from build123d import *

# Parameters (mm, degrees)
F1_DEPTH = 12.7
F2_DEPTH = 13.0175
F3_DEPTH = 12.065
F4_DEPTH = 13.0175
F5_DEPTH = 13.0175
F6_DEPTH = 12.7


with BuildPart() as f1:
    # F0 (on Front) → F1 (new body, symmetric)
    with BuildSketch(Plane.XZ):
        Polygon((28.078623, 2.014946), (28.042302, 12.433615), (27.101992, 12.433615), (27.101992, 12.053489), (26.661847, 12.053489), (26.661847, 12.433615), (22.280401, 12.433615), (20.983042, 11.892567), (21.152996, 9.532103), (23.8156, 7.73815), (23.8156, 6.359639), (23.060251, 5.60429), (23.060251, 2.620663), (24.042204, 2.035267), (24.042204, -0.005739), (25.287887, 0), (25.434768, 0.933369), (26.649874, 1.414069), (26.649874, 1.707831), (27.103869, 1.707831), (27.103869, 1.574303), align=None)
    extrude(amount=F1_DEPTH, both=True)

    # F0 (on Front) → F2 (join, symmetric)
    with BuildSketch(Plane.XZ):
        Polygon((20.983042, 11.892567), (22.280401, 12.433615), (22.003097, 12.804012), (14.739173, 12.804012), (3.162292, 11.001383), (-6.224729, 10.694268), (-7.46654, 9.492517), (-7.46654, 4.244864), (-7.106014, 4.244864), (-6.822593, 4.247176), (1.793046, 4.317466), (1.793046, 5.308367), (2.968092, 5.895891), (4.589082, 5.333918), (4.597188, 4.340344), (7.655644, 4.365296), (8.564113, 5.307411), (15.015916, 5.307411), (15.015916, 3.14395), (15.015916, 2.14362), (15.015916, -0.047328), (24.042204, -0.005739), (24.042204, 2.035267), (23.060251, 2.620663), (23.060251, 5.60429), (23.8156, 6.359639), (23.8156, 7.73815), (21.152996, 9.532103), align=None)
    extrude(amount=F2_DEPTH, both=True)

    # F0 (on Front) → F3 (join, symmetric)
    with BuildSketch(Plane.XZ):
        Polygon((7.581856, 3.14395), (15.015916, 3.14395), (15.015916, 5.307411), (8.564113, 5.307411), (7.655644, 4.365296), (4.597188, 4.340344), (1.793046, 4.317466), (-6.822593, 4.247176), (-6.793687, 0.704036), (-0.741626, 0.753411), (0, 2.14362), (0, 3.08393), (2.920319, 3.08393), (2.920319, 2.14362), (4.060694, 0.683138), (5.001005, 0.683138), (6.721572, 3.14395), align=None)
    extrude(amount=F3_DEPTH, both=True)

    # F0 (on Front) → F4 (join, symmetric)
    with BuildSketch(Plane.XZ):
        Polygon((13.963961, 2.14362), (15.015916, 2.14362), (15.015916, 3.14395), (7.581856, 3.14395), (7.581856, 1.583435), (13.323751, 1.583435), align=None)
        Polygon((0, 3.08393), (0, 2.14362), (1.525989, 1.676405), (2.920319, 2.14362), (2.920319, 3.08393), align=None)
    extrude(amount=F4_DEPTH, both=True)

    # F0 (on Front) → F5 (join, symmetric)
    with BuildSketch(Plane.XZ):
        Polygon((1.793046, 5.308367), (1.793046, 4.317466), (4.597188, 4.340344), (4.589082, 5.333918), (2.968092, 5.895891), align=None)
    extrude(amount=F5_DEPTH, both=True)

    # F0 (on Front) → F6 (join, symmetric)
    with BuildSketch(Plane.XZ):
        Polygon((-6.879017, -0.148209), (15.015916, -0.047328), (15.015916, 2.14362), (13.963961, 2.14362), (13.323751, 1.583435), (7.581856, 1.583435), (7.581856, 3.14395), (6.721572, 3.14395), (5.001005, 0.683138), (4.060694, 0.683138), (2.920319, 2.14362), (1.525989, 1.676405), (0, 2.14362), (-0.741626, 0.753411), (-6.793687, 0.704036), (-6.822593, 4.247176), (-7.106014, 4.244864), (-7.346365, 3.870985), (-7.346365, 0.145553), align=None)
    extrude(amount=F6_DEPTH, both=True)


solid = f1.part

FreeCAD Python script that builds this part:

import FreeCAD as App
import Part
import Sketcher
Q = App.Units.Quantity


def add_polygon(sketch, points):
    """Adds a closed chain of lines whose ends are joined by coincident constraints."""
    first, n = sketch.GeometryCount, len(points)
    for a, b in zip(points, points[1:] + points[:1]):
        sketch.addGeometry(Part.LineSegment(App.Vector(*a, 0), App.Vector(*b, 0)), False)
    for i in range(n):
        sketch.addConstraint(Sketcher.Constraint("Coincident", first + i, 2, first + (i + 1) % n, 1))

doc = App.newDocument("Part")
body = doc.addObject("PartDesign::Body", "Body")

sketch1 = body.newObject("Sketcher::SketchObject", "Sketch")
sketch1.AttachmentSupport = (doc.getObject("XZ_Plane"), [""])
sketch1.MapMode = "FlatFace"
add_polygon(sketch1, [(28.08, 2.01), (28.04, 12.43), (27.1, 12.43), (27.1, 12.05), (26.66, 12.05), (26.66, 12.43), (22.28, 12.43), (20.98, 11.89), (21.15, 9.53), (23.82, 7.74), (23.82, 6.36), (23.06, 5.6), (23.06, 2.62), (24.04, 2.04), (24.04, -0.01), (25.29, 0), (25.43, 0.93), (26.65, 1.41), (26.65, 1.71), (27.1, 1.71), (27.1, 1.57)])
sketch1.addConstraint(Sketcher.Constraint("Horizontal", 1))
sketch1.addConstraint(Sketcher.Constraint("Vertical", 2))
sketch1.addConstraint(Sketcher.Constraint("Horizontal", 3))
sketch1.addConstraint(Sketcher.Constraint("Vertical", 4))
sketch1.addConstraint(Sketcher.Constraint("Horizontal", 5))
sketch1.addConstraint(Sketcher.Constraint("Vertical", 9))
sketch1.addConstraint(Sketcher.Constraint("Vertical", 11))
sketch1.addConstraint(Sketcher.Constraint("Vertical", 13))
sketch1.addConstraint(Sketcher.Constraint("Vertical", 17))
sketch1.addConstraint(Sketcher.Constraint("Horizontal", 18))
sketch1.addConstraint(Sketcher.Constraint("Vertical", 19))
sketch1.addConstraint(Sketcher.Constraint("PointOnObject", 14, 2, -1))
sketch1.addConstraint(Sketcher.Constraint("Horizontal", 1, 2, 4, 2))
sketch1.addConstraint(Sketcher.Constraint("Angle", 10, Q("-135 deg")))
sketch1.addConstraint(Sketcher.Constraint("Distance", 8, Q("0.1264002 in")))
sketch1.addConstraint(Sketcher.Constraint("DistanceY", 9, 2, 7, 2, Q("0.1249002 in")))
sketch1.addConstraint(Sketcher.Constraint("DistanceX", 1, 2, 1, 1, 0.94031))
sketch1.addConstraint(Sketcher.Constraint("DistanceY", 9, 2, 9, 1, 1.378511))
sketch1.addConstraint(Sketcher.Constraint("DistanceY", 19, 2, 19, 1, 0.133528))
sketch1.addConstraint(Sketcher.Constraint("DistanceX", -1, 1, 0, 2, 28.042302))
sketch1.addConstraint(Sketcher.Constraint("DistanceX", -1, 1, 5, 2, 22.280401))
sketch1.addConstraint(Sketcher.Constraint("DistanceX", -1, 1, 8, 2, 23.8156))
sketch1.addConstraint(Sketcher.Constraint("DistanceY", 15, 2, 12, 2, 1.101898))
sketch1.addConstraint(Sketcher.Constraint("DistanceY", 15, 2, 16, 2, 0.4807))
sketch1.addConstraint(Sketcher.Constraint("DistanceX", 15, 2, 18, 2, 1.669101))
sketch1.addConstraint(Sketcher.Constraint("DistanceX", 3, 2, 3, 1, 0.440145))
sketch1.addConstraint(Sketcher.Constraint("DistanceX", 18, 1, 18, 2, 0.453995))
sketch1.addConstraint(Sketcher.Constraint("DistanceY", 2, 2, 2, 1, 0.380126))
sketch1.addConstraint(Sketcher.Constraint("DistanceY", 11, 2, 11, 1, 2.983627))
sketch1.addConstraint(Sketcher.Constraint("DistanceY", 13, 2, 13, 1, 2.041006))
sketch1.addConstraint(Sketcher.Constraint("DistanceY", 17, 1, 17, 2, 0.293762))
sketch1.addConstraint(Sketcher.Constraint("DistanceY", -1, 1, 2, 2, 12.053489))
sketch1.addConstraint(Sketcher.Constraint("DistanceY", -1, 1, 8, 2, 7.73815))
sketch1.addConstraint(Sketcher.Constraint("DistanceX", -1, 1, 10, 2, 23.060251))
sketch1.addConstraint(Sketcher.Constraint("DistanceY", 13, 2, -1, 1, 0.005739))
sketch1.addConstraint(Sketcher.Constraint("DistanceX", -1, 1, 18, 2, 27.103869))
sketch1.addConstraint(Sketcher.Constraint("DistanceX", 6, 2, 5, 2, 1.297359))
sketch1.addConstraint(Sketcher.Constraint("DistanceX", 7, 2, 12, 2, 2.889208))
sketch1.addConstraint(Sketcher.Constraint("DistanceX", 14, 2, 15, 2, 0.146881))
sketch1.addConstraint(Sketcher.Constraint("DistanceX", 17, 2, 20, 2, 1.428749))
sketch1.addConstraint(Sketcher.Constraint("Distance", 0, 10.418732))
sketch1.addConstraint(Sketcher.Constraint("Distance", 6, 1.405658))
pad1 = body.newObject("PartDesign::Pad", "Pad")
pad1.Profile = sketch1
pad1.Length = Q("1 in")
pad1.Midplane = True

sketch2 = body.newObject("Sketcher::SketchObject", "Sketch001")
sketch2.AttachmentSupport = (doc.getObject("XZ_Plane"), [""])
sketch2.MapMode = "FlatFace"
add_polygon(sketch2, [(20.98, 11.89), (22.28, 12.43), (22, 12.8), (14.74, 12.8), (3.16, 11), (-6.22, 10.69), (-7.47, 9.49), (-7.47, 4.24), (-7.11, 4.24), (-6.82, 4.25), (1.79, 4.32), (1.79, 5.31), (2.97, 5.9), (4.59, 5.33), (4.6, 4.34), (7.66, 4.37), (8.56, 5.31), (15.02, 5.31), (15.02, -0.05), (24.04, -0.01), (24.04, 2.04), (23.06, 2.62), (23.06, 5.6), (23.82, 6.36), (23.82, 7.74), (21.15, 9.53)])
sketch2.addConstraint(Sketcher.Constraint("Horizontal", 2))
sketch2.addConstraint(Sketcher.Constraint("Vertical", 6))
sketch2.addConstraint(Sketcher.Constraint("Horizontal", 7))
sketch2.addConstraint(Sketcher.Constraint("Vertical", 10))
sketch2.addConstraint(Sketcher.Constraint("Horizontal", 16))
sketch2.addConstraint(Sketcher.Constraint("Vertical", 17))
sketch2.addConstraint(Sketcher.Constraint("Vertical", 19))
sketch2.addConstraint(Sketcher.Constraint("Vertical", 21))
sketch2.addConstraint(Sketcher.Constraint("Vertical", 23))
sketch2.addConstraint(Sketcher.Constraint("Parallel", 8, 9))
sketch2.addConstraint(Sketcher.Constraint("Perpendicular", 9, 13))
sketch2.addConstraint(Sketcher.Constraint("Perpendicular", 13, 14))
sketch2.addConstraint(Sketcher.Constraint("Angle", 22, Q("45 deg")))
sketch2.addConstraint(Sketcher.Constraint("Distance", 24, Q("0.1264002 in")))
sketch2.addConstraint(Sketcher.Constraint("DistanceY", 10, 1, 10, 2, 0.990901))
sketch2.addConstraint(Sketcher.Constraint("DistanceY", 22, 2, 24, 2, Q("0.1249002 in")))
sketch2.addConstraint(Sketcher.Constraint("Distance", 1, 0.4627))
sketch2.addConstraint(Sketcher.Constraint("DistanceY", 17, 2, 17, 1, 5.354739))
sketch2.addConstraint(Sketcher.Constraint("DistanceY", 23, 1, 23, 2, 1.378511))
sketch2.addConstraint(Sketcher.Constraint("DistanceX", -1, 1, 0, 2, 22.280401))
sketch2.addConstraint(Sketcher.Constraint("DistanceX", -1, 1, 22, 2, 23.8156))
sketch2.addConstraint(Sketcher.Constraint("DistanceX", 4, 2, 2, 2, 20.963902))
sketch2.addConstraint(Sketcher.Constraint("DistanceY", 5, 2, 0, 2, 2.941098))
sketch2.addConstraint(Sketcher.Constraint("DistanceY", 7, 2, 9, 2, 0.072602))
sketch2.addConstraint(Sketcher.Constraint("DistanceY", 9, 2, 4, 2, 6.376802))
sketch2.addConstraint(Sketcher.Constraint("DistanceX", 11, 2, 3, 2, 0.1942))
sketch2.addConstraint(Sketcher.Constraint("DistanceX", 9, 2, 14, 2, 5.862598))
sketch2.addConstraint(Sketcher.Constraint("DistanceY", 16, 2, 2, 2, 7.496601))
sketch2.addConstraint(Sketcher.Constraint("DistanceX", 24, 2, 1, 2, 0.850101))
sketch2.addConstraint(Sketcher.Constraint("Distance", 5, 1.728091))
sketch2.addConstraint(Sketcher.Constraint("Distance", 8, 0.28343))
sketch2.addConstraint(Sketcher.Constraint("Distance", 11, 1.313742))
sketch2.addConstraint(Sketcher.Constraint("Distance", 12, 1.71564))
sketch2.addConstraint(Sketcher.Constraint("DistanceX", 2, 2, 2, 1, 7.263924))
sketch2.addConstraint(Sketcher.Constraint("DistanceX", 7, 1, 7, 2, 0.360526))
sketch2.addConstraint(Sketcher.Constraint("DistanceX", 16, 1, 16, 2, 6.451803))
sketch2.addConstraint(Sketcher.Constraint("DistanceY", 6, 2, 6, 1, 5.247653))
sketch2.addConstraint(Sketcher.Constraint("DistanceY", 19, 1, 19, 2, 2.041006))
sketch2.addConstraint(Sketcher.Constraint("DistanceY", 21, 1, 21, 2, 2.983627))
sketch2.addConstraint(Sketcher.Constraint("DistanceX", -1, 1, 3, 2, 3.162292))
sketch2.addConstraint(Sketcher.Constraint("DistanceY", -1, 1, 11, 2, 5.895891))
sketch2.addConstraint(Sketcher.Constraint("DistanceY", -1, 1, 15, 2, 5.307411))
sketch2.addConstraint(Sketcher.Constraint("DistanceY", 18, 2, -1, 1, 0.005739))
sketch2.addConstraint(Sketcher.Constraint("DistanceX", -1, 1, 20, 2, 23.060251))
sketch2.addConstraint(Sketcher.Constraint("DistanceY", -1, 1, 21, 2, 5.60429))
sketch2.addConstraint(Sketcher.Constraint("DistanceY", 3, 2, 2, 2, 1.802629))
sketch2.addConstraint(Sketcher.Constraint("DistanceX", 11, 2, 12, 2, 1.62099))
sketch2.addConstraint(Sketcher.Constraint("DistanceY", 9, 2, 13, 2, 0.022878))
sketch2.addConstraint(Sketcher.Constraint("DistanceX", 14, 2, 15, 2, 0.908469))
sketch2.addConstraint(Sketcher.Constraint("DistanceX", 17, 2, 18, 2, 9.026288))
sketch2.addConstraint(Sketcher.Constraint("DistanceX", 25, 2, 0, 2, 1.297359))
sketch2.addConstraint(Sketcher.Constraint("Distance", 0, 1.405658))
pad2 = body.newObject("PartDesign::Pad", "Pad001")
pad2.Profile = sketch2
pad2.Length = Q("1.025 in")
pad2.Midplane = True

sketch3 = body.newObject("Sketcher::SketchObject", "Sketch002")
sketch3.AttachmentSupport = (doc.getObject("XZ_Plane"), [""])
sketch3.MapMode = "FlatFace"
add_polygon(sketch3, [(15.015916, 3.14395), (15.015916, 5.307411), (8.564113, 5.307411), (7.655644, 4.365296), (4.597188, 4.340344), (1.793046, 4.317466), (-6.822593, 4.247176), (-6.793687, 0.704036), (-0.741626, 0.753411), (0, 2.14362), (0, 3.08393), (2.920319, 3.08393), (2.920319, 2.14362), (4.060694, 0.683138), (5.001005, 0.683138), (6.721572, 3.14395)])
sketch3.addConstraint(Sketcher.Constraint("Vertical", 0))
sketch3.addConstraint(Sketcher.Constraint("Horizontal", 1))
sketch3.addConstraint(Sketcher.Constraint("Vertical", 9))
sketch3.addConstraint(Sketcher.Constraint("Horizontal", 10))
sketch3.addConstraint(Sketcher.Constraint("Vertical", 11))
sketch3.addConstraint(Sketcher.Constraint("Horizontal", 13))
sketch3.addConstraint(Sketcher.Constraint("Horizontal", 15))
sketch3.addConstraint(Sketcher.Constraint("PointOnObject", 8, 2, -2))
sketch3.addConstraint(Sketcher.Constraint("DistanceY", 7, 2, 2, 2, Q("0.1422002 in")))
sketch3.addConstraint(Sketcher.Constraint("DistanceX", 10, 1, 10, 2, 2.920319))
sketch3.addConstraint(Sketcher.Constraint("DistanceX", 13, 1, 13, 2, 0.940311))
sketch3.addConstraint(Sketcher.Constraint("DistanceY", 0, 1, 0, 2, 2.163461))
sketch3.addConstraint(Sketcher.Constraint("DistanceY", 9, 1, 9, 2, 0.94031))
sketch3.addConstraint(Sketcher.Constraint("DistanceY", 11, 2, 11, 1, 0.94031))
sketch3.addConstraint(Sketcher.Constraint("DistanceX", 4, 2, 2, 2, 5.862598))
sketch3.addConstraint(Sketcher.Constraint("DistanceX", 6, 2, 1, 2, 15.3578))
sketch3.addConstraint(Sketcher.Constraint("Distance", 12, 1.852961))
sketch3.addConstraint(Sketcher.Constraint("DistanceX", 1, 2, 1, 1, 6.451803))
sketch3.addConstraint(Sketcher.Constraint("DistanceX", 15, 1, 15, 2, 8.294344))
sketch3.addConstraint(Sketcher.Constraint("DistanceY", -1, 1, 0, 2, 5.307411))
sketch3.addConstraint(Sketcher.Constraint("DistanceY", -1, 1, 7, 2, 0.753411))
sketch3.addConstraint(Sketcher.Constraint("DistanceY", -1, 1, 8, 2, 2.14362))
sketch3.addConstraint(Sketcher.Constraint("DistanceY", -1, 1, 12, 2, 0.683138))
sketch3.addConstraint(Sketcher.Constraint("DistanceX", 2, 2, 1, 2, 0.908469))
sketch3.addConstraint(Sketcher.Constraint("DistanceY", 3, 2, 2, 2, 0.024952))
sketch3.addConstraint(Sketcher.Constraint("DistanceX", 3, 2, 0, 2, 10.418728))
sketch3.addConstraint(Sketcher.Constraint("DistanceY", 4, 2, 3, 2, 0.022878))
sketch3.addConstraint(Sketcher.Constraint("DistanceX", 5, 2, 4, 2, 8.615639))
sketch3.addConstraint(Sketcher.Constraint("DistanceY", 5, 2, 4, 2, 0.07029))
sketch3.addConstraint(Sketcher.Constraint("DistanceY", 6, 2, 5, 2, 3.54314))
sketch3.addConstraint(Sketcher.Constraint("DistanceX", 7, 2, 4, 2, 2.534672))
sketch3.addConstraint(Sketcher.Constraint("DistanceX", 10, 2, 3, 2, 1.676869))
pad3 = body.newObject("PartDesign::Pad", "Pad002")
pad3.Profile = sketch3
pad3.Length = Q("0.95 in")
pad3.Midplane = True

sketch4 = body.newObject("Sketcher::SketchObject", "Sketch003")
sketch4.AttachmentSupport = (doc.getObject("XZ_Plane"), [""])
sketch4.MapMode = "FlatFace"
add_polygon(sketch4, [(14, 2.1), (15, 2.1), (15, 3.1), (7.6, 3.1), (7.6, 1.6), (13.3, 1.6)])
add_polygon(sketch4, [(0, 3.1), (0, 2.1), (1.5, 1.7), (2.9, 2.1), (2.9, 3.1)])
sketch4.addConstraint(Sketcher.Constraint("Horizontal", 0))
sketch4.addConstraint(Sketcher.Constraint("Vertical", 1))
sketch4.addConstraint(Sketcher.Constraint("Horizontal", 2))
sketch4.addConstraint(Sketcher.Constraint("Vertical", 3))
sketch4.addConstraint(Sketcher.Constraint("Horizontal", 4))
sketch4.addConstraint(Sketcher.Constraint("Vertical", 6))
sketch4.addConstraint(Sketcher.Constraint("Vertical", 9))
sketch4.addConstraint(Sketcher.Constraint("Horizontal", 10))
sketch4.addConstraint(Sketcher.Constraint("PointOnObject", 6, 2, -2))
sketch4.addConstraint(Sketcher.Constraint("Horizontal", 5, 2, 6, 2))
sketch4.addConstraint(Sketcher.Constraint("Horizontal", 6, 2, 8, 2))
sketch4.addConstraint(Sketcher.Constraint("DistanceY", -1, 1, 7, 2, Q("0.0660002 in")))
sketch4.addConstraint(Sketcher.Constraint("DistanceX", 2, 2, 2, 1, 7.43406))
sketch4.addConstraint(Sketcher.Constraint("DistanceX", 10, 2, 10, 1, 2.920319))
sketch4.addConstraint(Sketcher.Constraint("DistanceY", 1, 1, 1, 2, 1.00033))
sketch4.addConstraint(Sketcher.Constraint("DistanceY", 6, 2, 6, 1, 0.94031))
sketch4.addConstraint(Sketcher.Constraint("Distance", 5, 0.850692))
sketch4.addConstraint(Sketcher.Constraint("Distance", 7, 1.595911))
sketch4.addConstraint(Sketcher.Constraint("DistanceX", 0, 1, 0, 2, 1.051955))
sketch4.addConstraint(Sketcher.Constraint("DistanceX", 4, 1, 4, 2, 5.741895))
sketch4.addConstraint(Sketcher.Constraint("DistanceY", -1, 1, 0, 2, 2.14362))
sketch4.addConstraint(Sketcher.Constraint("DistanceX", -1, 1, 4, 2, 13.323751))
pad4 = body.newObject("PartDesign::Pad", "Pad003")
pad4.Profile = sketch4
pad4.Length = Q("1.025 in")
pad4.Midplane = True

sketch5 = body.newObject("Sketcher::SketchObject", "Sketch004")
sketch5.AttachmentSupport = (doc.getObject("XZ_Plane"), [""])
sketch5.MapMode = "FlatFace"
add_polygon(sketch5, [(1.8, 5.3), (1.8, 4.3), (4.6, 4.3), (4.6, 5.3), (3, 5.9)])
sketch5.addConstraint(Sketcher.Constraint("Vertical", 0))
sketch5.addConstraint(Sketcher.Constraint("Perpendicular", 1, 2))
sketch5.addConstraint(Sketcher.Constraint("DistanceY", 0, 2, 0, 1, 0.990901))
sketch5.addConstraint(Sketcher.Constraint("Distance", 3, 1.71564))
sketch5.addConstraint(Sketcher.Constraint("Distance", 4, 1.313742))
sketch5.addConstraint(Sketcher.Constraint("DistanceX", -1, 1, 3, 2, 2.968092))
sketch5.addConstraint(Sketcher.Constraint("DistanceY", -1, 1, 3, 2, 5.895891))
sketch5.addConstraint(Sketcher.Constraint("DistanceY", 0, 2, 1, 2, 0.022878))
sketch5.addConstraint(Sketcher.Constraint("DistanceX", 3, 2, 2, 2, 1.62099))
sketch5.addConstraint(Sketcher.Constraint("DistanceY", 4, 2, 2, 2, 0.025551))
pad5 = body.newObject("PartDesign::Pad", "Pad004")
pad5.Profile = sketch5
pad5.Length = Q("1.025 in")
pad5.Midplane = True

sketch6 = body.newObject("Sketcher::SketchObject", "Sketch005")
sketch6.AttachmentSupport = (doc.getObject("XZ_Plane"), [""])
sketch6.MapMode = "FlatFace"
add_polygon(sketch6, [(-6.88, -0.15), (15.02, -0.05), (15.02, 2.14), (13.96, 2.14), (13.32, 1.58), (7.58, 1.58), (7.58, 3.14), (6.72, 3.14), (5, 0.68), (4.06, 0.68), (2.92, 2.14), (1.53, 1.68), (0, 2.14), (-0.74, 0.75), (-6.79, 0.7), (-6.82, 4.25), (-7.11, 4.24), (-7.35, 3.87), (-7.35, 0.15)])
sketch6.addConstraint(Sketcher.Constraint("Vertical", 1))
sketch6.addConstraint(Sketcher.Constraint("Horizontal", 2))
sketch6.addConstraint(Sketcher.Constraint("Horizontal", 4))
sketch6.addConstraint(Sketcher.Constraint("Vertical", 5))
sketch6.addConstraint(Sketcher.Constraint("Horizontal", 6))
sketch6.addConstraint(Sketcher.Constraint("Horizontal", 8))
sketch6.addConstraint(Sketcher.Constraint("Vertical", 17))
sketch6.addConstraint(Sketcher.Constraint("PointOnObject", 11, 2, -2))
sketch6.addConstraint(Sketcher.Constraint("Perpendicular", 13, 14))
sketch6.addConstraint(Sketcher.Constraint("Perpendicular", 14, 15))
sketch6.addConstraint(Sketcher.Constraint("Horizontal", 2, 2, 9, 2))
sketch6.addConstraint(Sketcher.Constraint("Horizontal", 9, 2, 11, 2))
sketch6.addConstraint(Sketcher.Constraint("DistanceY", -1, 1, 10, 2, Q("0.0660002 in")))
sketch6.addConstraint(Sketcher.Constraint("DistanceX", 8, 2, 8, 1, 0.940311))
sketch6.addConstraint(Sketcher.Constraint("Distance", 3, 0.850692))
sketch6.addConstraint(Sketcher.Constraint("Distance", 9, 1.852961))
sketch6.addConstraint(Sketcher.Constraint("Distance", 11, 1.595911))
sketch6.addConstraint(Sketcher.Constraint("Distance", 15, 0.28343))
sketch6.addConstraint(Sketcher.Constraint("Distance", 16, 0.444471))
sketch6.addConstraint(Sketcher.Constraint("DistanceX", 2, 2, 2, 1, 1.051955))
sketch6.addConstraint(Sketcher.Constraint("DistanceX", 4, 2, 4, 1, 5.741895))
sketch6.addConstraint(Sketcher.Constraint("DistanceX", 6, 2, 6, 1, 0.860284))
sketch6.addConstraint(Sketcher.Constraint("DistanceY", 1, 1, 1, 2, 2.190948))
sketch6.addConstraint(Sketcher.Constraint("DistanceY", 5, 1, 5, 2, 1.560515))
sketch6.addConstraint(Sketcher.Constraint("DistanceY", 17, 2, 17, 1, 3.725432))
sketch6.addConstraint(Sketcher.Constraint("DistanceY", 0, 2, -1, 1, 0.047328))
sketch6.addConstraint(Sketcher.Constraint("DistanceX", -1, 1, 2, 2, 13.963961))
sketch6.addConstraint(Sketcher.Constraint("DistanceX", -1, 1, 3, 2, 13.323751))
sketch6.addConstraint(Sketcher.Constraint("DistanceY", -1, 1, 7, 2, 0.683138))
sketch6.addConstraint(Sketcher.Constraint("DistanceX", -1, 1, 9, 2, 2.920319))
sketch6.addConstraint(Sketcher.Constraint("DistanceY", -1, 1, 12, 2, 0.753411))
sketch6.addConstraint(Sketcher.Constraint("DistanceY", 18, 2, -1, 1, 0.148209))
sketch6.addConstraint(Sketcher.Constraint("DistanceX", 12, 2, 8, 2, 4.80232))
sketch6.addConstraint(Sketcher.Constraint("DistanceX", 13, 2, 12, 2, 6.052061))
sketch6.addConstraint(Sketcher.Constraint("DistanceY", 13, 2, 10, 2, 0.972369))
sketch6.addConstraint(Sketcher.Constraint("DistanceY", 13, 2, 14, 2, 3.54314))
sketch6.addConstraint(Sketcher.Constraint("DistanceX", 16, 2, 15, 2, 0.240351))
sketch6.addConstraint(Sketcher.Constraint("DistanceX", 18, 2, 13, 2, 0.08533))
pad6 = body.newObject("PartDesign::Pad", "Pad005")
pad6.Profile = sketch6
pad6.Length = Q("1 in")
pad6.Midplane = True

doc.recompute()
